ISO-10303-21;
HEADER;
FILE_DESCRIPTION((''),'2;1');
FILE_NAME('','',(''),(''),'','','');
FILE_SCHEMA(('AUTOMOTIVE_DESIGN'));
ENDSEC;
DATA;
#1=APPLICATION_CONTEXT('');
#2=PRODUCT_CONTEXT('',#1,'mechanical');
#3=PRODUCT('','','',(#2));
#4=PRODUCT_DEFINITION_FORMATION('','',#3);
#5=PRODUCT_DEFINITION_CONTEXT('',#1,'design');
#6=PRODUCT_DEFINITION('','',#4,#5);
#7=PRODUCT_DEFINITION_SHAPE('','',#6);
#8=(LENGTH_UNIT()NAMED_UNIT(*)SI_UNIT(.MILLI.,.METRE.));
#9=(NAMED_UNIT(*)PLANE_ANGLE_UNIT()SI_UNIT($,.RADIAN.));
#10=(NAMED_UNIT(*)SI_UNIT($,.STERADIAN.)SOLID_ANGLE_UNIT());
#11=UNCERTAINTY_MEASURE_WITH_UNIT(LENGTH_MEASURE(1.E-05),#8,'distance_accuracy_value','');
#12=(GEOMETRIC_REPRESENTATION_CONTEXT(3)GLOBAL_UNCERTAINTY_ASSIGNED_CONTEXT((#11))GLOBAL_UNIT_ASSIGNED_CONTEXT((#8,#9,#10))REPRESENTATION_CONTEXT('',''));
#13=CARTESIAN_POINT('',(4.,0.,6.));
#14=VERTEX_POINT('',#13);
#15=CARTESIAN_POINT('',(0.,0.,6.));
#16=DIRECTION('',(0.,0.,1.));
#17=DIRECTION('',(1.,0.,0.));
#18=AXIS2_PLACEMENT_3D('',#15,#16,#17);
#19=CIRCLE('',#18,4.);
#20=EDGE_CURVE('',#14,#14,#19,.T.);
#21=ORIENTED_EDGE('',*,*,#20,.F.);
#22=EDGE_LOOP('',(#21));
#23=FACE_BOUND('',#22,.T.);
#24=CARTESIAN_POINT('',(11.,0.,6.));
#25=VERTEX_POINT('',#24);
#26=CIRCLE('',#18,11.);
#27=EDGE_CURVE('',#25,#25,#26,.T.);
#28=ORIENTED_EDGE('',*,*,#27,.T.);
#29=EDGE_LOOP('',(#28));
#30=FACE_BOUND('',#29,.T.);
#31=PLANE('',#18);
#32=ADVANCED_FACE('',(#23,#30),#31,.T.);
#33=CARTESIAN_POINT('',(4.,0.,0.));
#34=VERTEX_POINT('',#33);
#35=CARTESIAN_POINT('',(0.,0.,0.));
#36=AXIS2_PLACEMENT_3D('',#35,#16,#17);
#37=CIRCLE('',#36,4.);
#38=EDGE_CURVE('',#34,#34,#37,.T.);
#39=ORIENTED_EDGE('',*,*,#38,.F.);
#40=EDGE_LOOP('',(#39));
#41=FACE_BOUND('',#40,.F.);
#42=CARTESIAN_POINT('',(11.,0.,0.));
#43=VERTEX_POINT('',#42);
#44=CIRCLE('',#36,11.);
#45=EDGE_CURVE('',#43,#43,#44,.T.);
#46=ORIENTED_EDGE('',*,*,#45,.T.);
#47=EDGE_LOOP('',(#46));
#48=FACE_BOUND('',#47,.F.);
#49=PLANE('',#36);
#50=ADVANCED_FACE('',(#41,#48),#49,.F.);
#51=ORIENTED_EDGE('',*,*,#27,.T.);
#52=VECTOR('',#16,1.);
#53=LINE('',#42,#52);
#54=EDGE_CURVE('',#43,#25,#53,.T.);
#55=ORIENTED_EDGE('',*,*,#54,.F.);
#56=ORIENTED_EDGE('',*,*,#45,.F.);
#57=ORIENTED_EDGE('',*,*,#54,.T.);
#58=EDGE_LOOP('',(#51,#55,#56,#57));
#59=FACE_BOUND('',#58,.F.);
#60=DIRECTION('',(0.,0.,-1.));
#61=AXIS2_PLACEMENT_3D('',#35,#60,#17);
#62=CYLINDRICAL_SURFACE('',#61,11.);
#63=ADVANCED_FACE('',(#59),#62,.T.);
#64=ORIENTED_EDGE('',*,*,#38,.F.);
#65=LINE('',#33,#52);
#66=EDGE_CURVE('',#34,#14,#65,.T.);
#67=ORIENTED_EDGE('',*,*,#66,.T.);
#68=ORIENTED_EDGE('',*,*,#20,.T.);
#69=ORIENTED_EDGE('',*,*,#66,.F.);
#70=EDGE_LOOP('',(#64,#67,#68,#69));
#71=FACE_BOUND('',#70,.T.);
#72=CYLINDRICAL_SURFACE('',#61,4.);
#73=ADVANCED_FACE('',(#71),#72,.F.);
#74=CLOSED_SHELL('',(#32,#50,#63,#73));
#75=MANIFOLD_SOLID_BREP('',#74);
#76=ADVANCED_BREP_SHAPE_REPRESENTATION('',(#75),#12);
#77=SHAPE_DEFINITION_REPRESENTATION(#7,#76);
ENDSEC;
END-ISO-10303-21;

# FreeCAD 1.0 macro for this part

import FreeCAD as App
import Part
import Sketcher

V = App.Vector

doc = App.newDocument("Part")
body = doc.addObject("PartDesign::Body", "Body")

# Sketch on XY plane
sketch1 = body.newObject("Sketcher::SketchObject", "Sketch")
sketch1.AttachmentSupport = (doc.getObject("XY_Plane"), [""])
sketch1.MapMode = "FlatFace"
sketch1.addGeometry([
    Part.Circle(V(0, 0, 0), V(0, 0, 1), 11),
    Part.Circle(V(0, 0, 0), V(0, 0, 1), 4),
], False)
sketch1.addConstraint([
    Sketcher.Constraint("Coincident", 0, 3, -1, 1),
    Sketcher.Constraint("Coincident", 1, 3, -1, 1),
    Sketcher.Constraint("Diameter", 0, 22.0),
    Sketcher.Constraint("Diameter", 1, 8.0),
])
pad1 = body.newObject("PartDesign::Pad", "Pad")
pad1.Profile = sketch1
pad1.Length = 6

doc.recompute()
